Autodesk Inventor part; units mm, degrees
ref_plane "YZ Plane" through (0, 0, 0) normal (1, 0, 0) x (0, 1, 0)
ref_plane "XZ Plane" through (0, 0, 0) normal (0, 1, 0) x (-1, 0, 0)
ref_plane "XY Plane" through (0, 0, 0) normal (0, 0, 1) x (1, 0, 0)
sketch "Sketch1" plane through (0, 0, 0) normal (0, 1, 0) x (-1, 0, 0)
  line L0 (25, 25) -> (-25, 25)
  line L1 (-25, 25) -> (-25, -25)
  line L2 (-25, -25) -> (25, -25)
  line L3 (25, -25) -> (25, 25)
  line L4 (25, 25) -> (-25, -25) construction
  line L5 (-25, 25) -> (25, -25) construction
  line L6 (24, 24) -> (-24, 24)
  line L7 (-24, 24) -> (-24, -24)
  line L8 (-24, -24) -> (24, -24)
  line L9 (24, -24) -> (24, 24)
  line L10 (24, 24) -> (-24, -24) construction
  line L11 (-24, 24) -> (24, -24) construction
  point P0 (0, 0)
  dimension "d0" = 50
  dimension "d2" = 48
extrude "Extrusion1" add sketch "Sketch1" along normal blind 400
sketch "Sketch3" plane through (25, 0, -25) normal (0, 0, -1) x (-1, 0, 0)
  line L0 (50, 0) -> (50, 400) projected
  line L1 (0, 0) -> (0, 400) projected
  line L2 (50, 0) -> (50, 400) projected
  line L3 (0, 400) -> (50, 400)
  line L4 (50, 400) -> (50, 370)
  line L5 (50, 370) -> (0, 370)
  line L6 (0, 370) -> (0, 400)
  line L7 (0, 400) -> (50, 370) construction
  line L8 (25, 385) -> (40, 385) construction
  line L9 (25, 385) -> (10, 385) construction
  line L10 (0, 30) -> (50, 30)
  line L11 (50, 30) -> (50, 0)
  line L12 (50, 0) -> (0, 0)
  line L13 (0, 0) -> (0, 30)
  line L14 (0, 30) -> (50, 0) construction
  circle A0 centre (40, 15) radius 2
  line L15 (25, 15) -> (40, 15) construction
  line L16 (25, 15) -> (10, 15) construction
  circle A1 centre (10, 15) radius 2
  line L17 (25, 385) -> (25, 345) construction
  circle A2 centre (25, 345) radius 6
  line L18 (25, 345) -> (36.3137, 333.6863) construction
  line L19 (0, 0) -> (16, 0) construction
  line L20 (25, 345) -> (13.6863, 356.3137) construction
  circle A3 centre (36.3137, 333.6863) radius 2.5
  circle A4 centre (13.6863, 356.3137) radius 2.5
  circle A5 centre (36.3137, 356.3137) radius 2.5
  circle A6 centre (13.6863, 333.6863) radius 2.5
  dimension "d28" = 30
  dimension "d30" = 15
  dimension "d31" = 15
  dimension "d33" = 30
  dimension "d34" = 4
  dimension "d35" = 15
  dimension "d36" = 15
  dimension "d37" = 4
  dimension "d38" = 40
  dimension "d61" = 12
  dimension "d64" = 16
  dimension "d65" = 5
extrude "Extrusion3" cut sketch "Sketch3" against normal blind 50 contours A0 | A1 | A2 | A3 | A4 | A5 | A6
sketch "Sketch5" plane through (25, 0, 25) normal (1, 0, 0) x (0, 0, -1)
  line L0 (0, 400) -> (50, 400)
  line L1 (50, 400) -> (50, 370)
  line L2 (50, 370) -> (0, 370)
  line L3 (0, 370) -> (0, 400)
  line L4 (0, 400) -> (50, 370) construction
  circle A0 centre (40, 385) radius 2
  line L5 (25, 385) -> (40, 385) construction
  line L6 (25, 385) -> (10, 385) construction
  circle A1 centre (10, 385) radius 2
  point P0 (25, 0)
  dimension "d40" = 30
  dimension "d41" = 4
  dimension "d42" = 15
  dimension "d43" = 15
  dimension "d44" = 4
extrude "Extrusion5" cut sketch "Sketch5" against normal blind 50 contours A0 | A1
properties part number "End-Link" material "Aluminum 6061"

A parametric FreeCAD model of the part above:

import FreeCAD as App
import Part
import Sketcher

V = App.Vector
Q = App.Units.Quantity


def add_polygon(sketch, points):
    """Adds a closed chain of lines whose ends are joined by coincident constraints."""
    first, n = sketch.GeometryCount, len(points)
    for a, b in zip(points, points[1:] + points[:1]):
        sketch.addGeometry(Part.LineSegment(App.Vector(*a, 0), App.Vector(*b, 0)), False)
    for i in range(n):
        sketch.addConstraint(Sketcher.Constraint("Coincident", first + i, 2, first + (i + 1) % n, 1))

doc = App.newDocument("Part")
body = doc.addObject("PartDesign::Body", "Body")

# Sketch on XZ plane
sketch1 = body.newObject("Sketcher::SketchObject", "Sketch")
sketch1.AttachmentSupport = (doc.getObject("XZ_Plane"), [""])
sketch1.MapMode = "FlatFace"
add_polygon(sketch1, [(-25, -25), (-25, 25), (25, 25), (25, -25)])  # lines 0-3
add_polygon(sketch1, [(24, 24), (-24, 24), (-24, -24), (24, -24)])  # lines 4-7
sketch1.addConstraint(Sketcher.Constraint("Vertical", 0))
sketch1.addConstraint(Sketcher.Constraint("Horizontal", 1))
sketch1.addConstraint(Sketcher.Constraint("Vertical", 2))
sketch1.addConstraint(Sketcher.Constraint("Horizontal", 3))
sketch1.addConstraint(Sketcher.Constraint("Horizontal", 4))
sketch1.addConstraint(Sketcher.Constraint("Vertical", 5))
sketch1.addConstraint(Sketcher.Constraint("Horizontal", 6))
sketch1.addConstraint(Sketcher.Constraint("Vertical", 7))
sketch1.addConstraint(Sketcher.Constraint("Symmetric", 0, 2, 2, 2, -1, 1))
sketch1.addConstraint(Sketcher.Constraint("Symmetric", 4, 2, 6, 2, -1, 1))
sketch1.addConstraint(Sketcher.Constraint("Equal", 3, 0))
sketch1.addConstraint(Sketcher.Constraint("Equal", 6, 5))
sketch1.addConstraint(Sketcher.Constraint("DistanceX", 1, 1, 1, 2, Q("50 mm")))
sketch1.addConstraint(Sketcher.Constraint("DistanceX", 4, 2, 4, 1, Q("48 mm")))
pad1 = body.newObject("PartDesign::Pad", "Pad")
pad1.Profile = sketch1
pad1.Length = 400
pad1.Reversed = True

# Sketch on XY plane
sketch2 = body.newObject("Sketcher::SketchObject", "Sketch001")
sketch2.AttachmentSupport = (doc.getObject("XY_Plane"), [""])
sketch2.MapMode = "FlatFace"
sketch2.AttachmentOffset = App.Placement(V(0, 0, -25), App.Rotation())
sketch2.addGeometry(Part.Circle(V(-15, 15, 0), V(0, 0, 1), 2), False)
sketch2.addGeometry(Part.Circle(V(15, 15, 0), V(0, 0, 1), 2), False)
sketch2.addGeometry(Part.Circle(V(0, 345, 0), V(0, 0, 1), 6), False)
sketch2.addGeometry(Part.Circle(V(-11.3, 333.7, 0), V(0, 0, 1), 2.5), False)
sketch2.addGeometry(Part.Circle(V(11.3, 356.3, 0), V(0, 0, 1), 2.5), False)
sketch2.addGeometry(Part.Circle(V(-11.3, 356.3, 0), V(0, 0, 1), 2.5), False)
sketch2.addGeometry(Part.Circle(V(11.3, 333.7, 0), V(0, 0, 1), 2.5), False)
sketch2.addConstraint(Sketcher.Constraint("Equal", 0, 1))
sketch2.addConstraint(Sketcher.Constraint("Equal", 3, 4))
sketch2.addConstraint(Sketcher.Constraint("Equal", 4, 5))
sketch2.addConstraint(Sketcher.Constraint("Equal", 5, 6))
sketch2.addConstraint(Sketcher.Constraint("Symmetric", 0, 3, 1, 3, -2))
sketch2.addConstraint(Sketcher.Constraint("Symmetric", 4, 3, 5, 3, -2))
sketch2.addConstraint(Sketcher.Constraint("Symmetric", 3, 3, 6, 3, -2))
sketch2.addConstraint(Sketcher.Constraint("PointOnObject", 2, 3, -2))
sketch2.addConstraint(Sketcher.Constraint("Vertical", 3, 3, 5, 3))
sketch2.addConstraint(Sketcher.Constraint("Diameter", 0, Q("4 mm")))
sketch2.addConstraint(Sketcher.Constraint("Diameter", 2, Q("12 mm")))
sketch2.addConstraint(Sketcher.Constraint("Diameter", 3, Q("5 mm")))
sketch2.addConstraint(Sketcher.Constraint("DistanceX", 0, 3, -1, 1, Q("15 mm")))
sketch2.addConstraint(Sketcher.Constraint("DistanceY", -1, 1, 0, 3, Q("15 mm")))
sketch2.addConstraint(Sketcher.Constraint("DistanceY", -1, 1, 2, 3, Q("345 mm")))
sketch2.addConstraint(Sketcher.Constraint("DistanceX", 3, 3, -1, 1, Q("11.3137 mm")))
sketch2.addConstraint(Sketcher.Constraint("DistanceY", -1, 1, 3, 3, Q("333.6863 mm")))
sketch2.addConstraint(Sketcher.Constraint("DistanceY", -1, 1, 4, 3, Q("356.3137 mm")))
pocket1 = body.newObject("PartDesign::Pocket", "Pocket")
pocket1.Profile = sketch2
pocket1.Length = 50
pocket1.Reversed = True

# Sketch on YZ plane
sketch3 = body.newObject("Sketcher::SketchObject", "Sketch002")
sketch3.AttachmentSupport = (doc.getObject("YZ_Plane"), [""])
sketch3.MapMode = "FlatFace"
sketch3.AttachmentOffset = App.Placement(V(0, 0, 25), App.Rotation())
sketch3.addGeometry(Part.Circle(V(385, -15, 0), V(0, 0, 1), 2), False)
sketch3.addGeometry(Part.Circle(V(385, 15, 0), V(0, 0, 1), 2), False)
sketch3.addConstraint(Sketcher.Constraint("Equal", 0, 1))
sketch3.addConstraint(Sketcher.Constraint("Symmetric", 0, 3, 1, 3, -1))
sketch3.addConstraint(Sketcher.Constraint("Diameter", 0, Q("4 mm")))
sketch3.addConstraint(Sketcher.Constraint("DistanceY", 0, 3, -1, 1, Q("15 mm")))
sketch3.addConstraint(Sketcher.Constraint("DistanceX", -1, 1, 0, 3, Q("385 mm")))
pocket2 = body.newObject("PartDesign::Pocket", "Pocket001")
pocket2.Profile = sketch3
pocket2.Length = 50

doc.recompute()
